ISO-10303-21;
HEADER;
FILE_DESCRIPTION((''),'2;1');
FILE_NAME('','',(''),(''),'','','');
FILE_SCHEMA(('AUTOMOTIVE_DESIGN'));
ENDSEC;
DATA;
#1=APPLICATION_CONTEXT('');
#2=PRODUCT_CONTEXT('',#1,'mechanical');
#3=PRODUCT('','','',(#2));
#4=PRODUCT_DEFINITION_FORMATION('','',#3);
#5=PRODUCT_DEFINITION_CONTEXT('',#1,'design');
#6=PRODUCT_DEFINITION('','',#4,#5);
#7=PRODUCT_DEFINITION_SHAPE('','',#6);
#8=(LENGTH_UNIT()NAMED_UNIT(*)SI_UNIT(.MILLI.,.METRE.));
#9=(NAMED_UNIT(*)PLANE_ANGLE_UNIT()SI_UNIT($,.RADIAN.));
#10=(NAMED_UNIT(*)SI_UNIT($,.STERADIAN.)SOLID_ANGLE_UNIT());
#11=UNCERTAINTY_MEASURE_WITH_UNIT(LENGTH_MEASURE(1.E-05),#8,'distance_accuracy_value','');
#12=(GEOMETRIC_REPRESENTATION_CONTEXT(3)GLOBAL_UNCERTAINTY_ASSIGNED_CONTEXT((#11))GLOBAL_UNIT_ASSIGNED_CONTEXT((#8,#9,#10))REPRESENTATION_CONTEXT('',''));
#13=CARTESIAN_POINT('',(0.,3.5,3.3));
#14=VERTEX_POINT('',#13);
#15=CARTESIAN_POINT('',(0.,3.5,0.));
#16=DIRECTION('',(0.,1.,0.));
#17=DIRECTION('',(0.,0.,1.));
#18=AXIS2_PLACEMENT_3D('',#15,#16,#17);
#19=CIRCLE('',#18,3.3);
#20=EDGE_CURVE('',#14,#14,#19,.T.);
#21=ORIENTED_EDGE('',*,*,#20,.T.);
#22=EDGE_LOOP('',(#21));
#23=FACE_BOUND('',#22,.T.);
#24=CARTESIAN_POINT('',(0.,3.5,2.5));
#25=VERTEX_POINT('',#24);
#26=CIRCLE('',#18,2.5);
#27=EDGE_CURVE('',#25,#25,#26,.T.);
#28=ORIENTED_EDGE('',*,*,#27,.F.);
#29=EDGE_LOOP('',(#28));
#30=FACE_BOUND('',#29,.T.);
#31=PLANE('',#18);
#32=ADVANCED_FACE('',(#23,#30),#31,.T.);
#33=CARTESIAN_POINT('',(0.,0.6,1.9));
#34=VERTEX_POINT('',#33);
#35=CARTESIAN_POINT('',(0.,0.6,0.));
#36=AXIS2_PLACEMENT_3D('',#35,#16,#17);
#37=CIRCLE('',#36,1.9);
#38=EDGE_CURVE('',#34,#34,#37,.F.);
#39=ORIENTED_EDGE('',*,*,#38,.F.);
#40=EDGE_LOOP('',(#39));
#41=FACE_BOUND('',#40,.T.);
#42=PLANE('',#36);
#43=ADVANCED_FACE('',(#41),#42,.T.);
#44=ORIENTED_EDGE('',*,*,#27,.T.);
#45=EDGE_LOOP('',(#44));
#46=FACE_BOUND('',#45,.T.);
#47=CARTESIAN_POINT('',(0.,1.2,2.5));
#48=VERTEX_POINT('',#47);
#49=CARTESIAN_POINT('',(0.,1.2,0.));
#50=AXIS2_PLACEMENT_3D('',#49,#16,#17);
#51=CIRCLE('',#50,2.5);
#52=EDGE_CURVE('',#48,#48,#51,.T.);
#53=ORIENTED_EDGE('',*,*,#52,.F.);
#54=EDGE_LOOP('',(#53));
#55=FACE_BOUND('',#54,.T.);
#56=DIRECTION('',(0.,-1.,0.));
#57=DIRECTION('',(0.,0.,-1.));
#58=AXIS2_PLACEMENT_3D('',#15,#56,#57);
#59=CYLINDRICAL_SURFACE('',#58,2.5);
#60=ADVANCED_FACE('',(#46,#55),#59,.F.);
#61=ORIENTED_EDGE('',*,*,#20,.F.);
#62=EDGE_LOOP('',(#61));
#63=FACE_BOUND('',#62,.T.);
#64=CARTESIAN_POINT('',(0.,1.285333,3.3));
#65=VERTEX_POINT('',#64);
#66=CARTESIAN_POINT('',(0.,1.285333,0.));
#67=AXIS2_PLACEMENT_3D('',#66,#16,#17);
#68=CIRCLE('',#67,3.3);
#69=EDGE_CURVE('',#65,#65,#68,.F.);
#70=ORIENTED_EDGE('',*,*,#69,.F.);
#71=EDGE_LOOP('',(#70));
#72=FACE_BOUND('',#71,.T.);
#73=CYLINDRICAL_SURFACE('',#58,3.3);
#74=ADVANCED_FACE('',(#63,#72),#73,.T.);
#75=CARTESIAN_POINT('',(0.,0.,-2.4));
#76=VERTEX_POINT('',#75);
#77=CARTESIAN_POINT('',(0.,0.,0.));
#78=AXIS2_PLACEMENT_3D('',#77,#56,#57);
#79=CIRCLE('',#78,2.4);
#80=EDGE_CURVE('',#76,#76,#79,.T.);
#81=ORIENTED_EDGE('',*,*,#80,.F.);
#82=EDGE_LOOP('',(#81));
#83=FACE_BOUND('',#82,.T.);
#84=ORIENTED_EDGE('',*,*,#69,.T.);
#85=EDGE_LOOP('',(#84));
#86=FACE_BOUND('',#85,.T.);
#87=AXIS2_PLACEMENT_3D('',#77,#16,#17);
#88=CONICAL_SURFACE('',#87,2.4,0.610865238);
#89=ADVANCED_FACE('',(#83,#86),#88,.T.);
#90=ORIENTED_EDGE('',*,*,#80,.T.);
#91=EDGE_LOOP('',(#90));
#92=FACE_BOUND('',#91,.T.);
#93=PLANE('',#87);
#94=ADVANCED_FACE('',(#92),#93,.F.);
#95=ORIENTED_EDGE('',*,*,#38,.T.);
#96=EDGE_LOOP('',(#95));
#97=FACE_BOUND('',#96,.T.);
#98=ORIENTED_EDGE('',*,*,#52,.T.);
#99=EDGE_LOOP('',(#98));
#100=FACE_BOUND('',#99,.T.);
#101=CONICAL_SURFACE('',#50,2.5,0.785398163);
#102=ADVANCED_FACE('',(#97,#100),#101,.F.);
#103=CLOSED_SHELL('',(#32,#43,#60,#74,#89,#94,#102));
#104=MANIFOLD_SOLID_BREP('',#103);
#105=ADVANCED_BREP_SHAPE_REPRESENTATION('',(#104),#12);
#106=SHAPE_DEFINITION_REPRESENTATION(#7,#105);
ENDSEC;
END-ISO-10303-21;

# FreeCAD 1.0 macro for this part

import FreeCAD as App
import Part
import Sketcher

V = App.Vector
Q = App.Units.Quantity

doc = App.newDocument("Part")
body = doc.addObject("PartDesign::Body", "Body")

# Sketch on XZ plane
sketch1 = body.newObject("Sketcher::SketchObject", "Sketch")
sketch1.AttachmentSupport = (doc.getObject("XZ_Plane"), [""])
sketch1.MapMode = "FlatFace"
sketch1.addGeometry([
    Part.Circle(V(0, 0, 0), V(0, 0, 1), 3.3),
    Part.Circle(V(0, 0, 0), V(0, 0, 1), 2.5),
], False)
sketch1.addConstraint([
    Sketcher.Constraint("Coincident", 0, 3, -1, 1),
    Sketcher.Constraint("Coincident", 1, 3, -1, 1),
    Sketcher.Constraint("Diameter", 1, 5.0),
    Sketcher.Constraint("Diameter", 0, 6.6),
])
pad1 = body.newObject("PartDesign::Pad", "Pad")
pad1.Profile = sketch1
pad1.Length = 3.5
pad1.Reversed = True

# Sketch on XZ plane
sketch2 = body.newObject("Sketcher::SketchObject", "Sketch001")
sketch2.AttachmentSupport = (doc.getObject("XZ_Plane"), [""])
sketch2.MapMode = "FlatFace"
sketch2.addGeometry(Part.Circle(V(0, 0, 0), V(0, 0, 1), 2.5), False)
sketch2.addConstraint([
    Sketcher.Constraint("Coincident", 0, 3, -1, 1),
    Sketcher.Constraint("Diameter", 0, 5.0),
])
pad2 = body.newObject("PartDesign::Pad", "Pad001")
pad2.Profile = sketch2
pad2.Length = 0.6
pad2.Reversed = True

# Sketch on XY plane
sketch3 = body.newObject("Sketcher::SketchObject", "Sketch002")
sketch3.AttachmentSupport = (doc.getObject("XY_Plane"), [""])
sketch3.MapMode = "FlatFace"
sketch3.addGeometry([
    Part.LineSegment(V(1.9, 0.6, 0), V(2.5, 0.6, 0)),
    Part.LineSegment(V(2.5, 0.6, 0), V(2.5, 1.2, 0)),
    Part.LineSegment(V(2.5, 1.2, 0), V(1.9, 0.6, 0)),
], False)
sketch3.addConstraint([
    Sketcher.Constraint("Coincident", 0, 2, 1, 1),
    Sketcher.Constraint("Coincident", 1, 2, 2, 1),
    Sketcher.Constraint("Coincident", 2, 2, 0, 1),
    Sketcher.Constraint("Horizontal", 0),
    Sketcher.Constraint("Vertical", 1),
    Sketcher.Constraint("Equal", 0, 1),
    Sketcher.Constraint("DistanceX", 0, 1, 0, 2, 0.6),
    Sketcher.Constraint("DistanceX", -1, 1, 0, 2, 2.5),
    Sketcher.Constraint("DistanceY", -1, 1, 0, 2, 0.6),
])
revolution = body.newObject("PartDesign::Revolution", "Revolution")
revolution.Profile = sketch3
revolution.ReferenceAxis = (sketch3, ["V_Axis"])
revolution.Angle = 360

# Sketch on XY plane
sketch4 = body.newObject("Sketcher::SketchObject", "Sketch003")
sketch4.AttachmentSupport = (doc.getObject("XY_Plane"), [""])
sketch4.MapMode = "FlatFace"
sketch4.addGeometry([
    Part.LineSegment(V(3.7, 0, 0), V(3.7, 1.9, 0)),
    Part.LineSegment(V(3.7, 1.9, 0), V(2.4, 0, 0)),
    Part.LineSegment(V(2.4, 0, 0), V(3.7, 0, 0)),
], False)
sketch4.addConstraint([
    Sketcher.Constraint("Coincident", 0, 2, 1, 1),
    Sketcher.Constraint("Coincident", 1, 2, 2, 1),
    Sketcher.Constraint("Coincident", 2, 2, 0, 1),
    Sketcher.Constraint("Vertical", 0),
    Sketcher.Constraint("Horizontal", 2),
    Sketcher.Constraint("PointOnObject", 1, 2, -1),
    Sketcher.Constraint("Angle", 1, Q("-125 deg")),
    Sketcher.Constraint("DistanceX", -1, 1, 1, 2, 2.4),
    Sketcher.Constraint("DistanceY", 0, 1, 0, 2, 1.918182),
])
groove = body.newObject("PartDesign::Groove", "Groove")
groove.Profile = sketch4
groove.ReferenceAxis = (sketch4, ["V_Axis"])
groove.Angle = 360

doc.recompute()
